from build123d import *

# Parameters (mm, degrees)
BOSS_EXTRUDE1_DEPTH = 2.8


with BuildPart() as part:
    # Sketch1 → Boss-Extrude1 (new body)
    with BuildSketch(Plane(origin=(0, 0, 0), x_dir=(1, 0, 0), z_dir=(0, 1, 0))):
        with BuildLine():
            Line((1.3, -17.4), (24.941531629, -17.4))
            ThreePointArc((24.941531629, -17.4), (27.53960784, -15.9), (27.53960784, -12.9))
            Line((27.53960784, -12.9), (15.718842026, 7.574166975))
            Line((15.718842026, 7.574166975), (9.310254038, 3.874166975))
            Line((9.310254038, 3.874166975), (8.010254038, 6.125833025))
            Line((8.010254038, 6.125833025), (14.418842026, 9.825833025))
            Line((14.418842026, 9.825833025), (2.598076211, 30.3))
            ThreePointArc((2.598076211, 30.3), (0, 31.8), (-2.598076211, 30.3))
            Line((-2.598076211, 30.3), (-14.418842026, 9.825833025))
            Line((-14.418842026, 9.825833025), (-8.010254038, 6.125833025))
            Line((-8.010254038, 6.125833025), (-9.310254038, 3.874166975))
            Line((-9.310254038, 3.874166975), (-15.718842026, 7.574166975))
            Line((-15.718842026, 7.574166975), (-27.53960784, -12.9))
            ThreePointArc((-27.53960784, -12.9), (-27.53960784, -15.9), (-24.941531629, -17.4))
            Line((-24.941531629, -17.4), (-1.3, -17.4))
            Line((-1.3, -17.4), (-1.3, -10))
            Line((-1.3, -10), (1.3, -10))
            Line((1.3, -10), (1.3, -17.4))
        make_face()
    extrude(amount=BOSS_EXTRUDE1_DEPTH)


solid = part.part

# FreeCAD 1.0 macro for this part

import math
import FreeCAD as App
import Part
import Sketcher
from FreeCAD import Vector
Q = App.Units.Quantity

doc = App.newDocument("Part")
body = doc.addObject("PartDesign::Body", "Body")

# Sketch on XZ plane
sketch1 = body.newObject("Sketcher::SketchObject", "Sketch")
sketch1.AttachmentSupport = (doc.getObject("XZ_Plane"), [""])
sketch1.MapMode = "FlatFace"
sketch1.addGeometry([
    Part.LineSegment(Vector(1.3, 17.4, 0), Vector(24.941532, 17.4, 0)),  # 0
    Part.ArcOfCircle(Part.Circle(Vector(24.941532, 14.4, 0), Vector(0, 0, 1), 3), math.radians(-30), math.radians(90)),  # 1
    Part.LineSegment(Vector(27.539608, 12.9, 0), Vector(15.718842, -7.574167, 0)),  # 2
    Part.LineSegment(Vector(15.718842, -7.574167, 0), Vector(9.310254, -3.874167, 0)),  # 3
    Part.LineSegment(Vector(9.310254, -3.874167, 0), Vector(8.010254, -6.125833, 0)),  # 4
    Part.LineSegment(Vector(8.010254, -6.125833, 0), Vector(14.418842, -9.825833, 0)),  # 5
    Part.LineSegment(Vector(14.418842, -9.825833, 0), Vector(2.598076, -30.3, 0)),  # 6
    Part.ArcOfCircle(Part.Circle(Vector(0, -28.8, 0), Vector(0, 0, 1), 3), math.radians(-150), math.radians(-30)),  # 7
    Part.LineSegment(Vector(-2.598076, -30.3, 0), Vector(-14.418842, -9.825833, 0)),  # 8
    Part.LineSegment(Vector(-14.418842, -9.825833, 0), Vector(-8.010254, -6.125833, 0)),  # 9
    Part.LineSegment(Vector(-8.010254, -6.125833, 0), Vector(-9.310254, -3.874167, 0)),  # 10
    Part.LineSegment(Vector(-9.310254, -3.874167, 0), Vector(-15.718842, -7.574167, 0)),  # 11
    Part.LineSegment(Vector(-15.718842, -7.574167, 0), Vector(-27.539608, 12.9, 0)),  # 12
    Part.ArcOfCircle(Part.Circle(Vector(-24.941532, 14.4, 0), Vector(0, 0, 1), 3), math.radians(90), math.radians(210)),  # 13
    Part.LineSegment(Vector(-24.941532, 17.4, 0), Vector(-1.3, 17.4, 0)),  # 14
    Part.LineSegment(Vector(-1.3, 17.4, 0), Vector(-1.3, 10, 0)),  # 15
    Part.LineSegment(Vector(-1.3, 10, 0), Vector(1.3, 10, 0)),  # 16
    Part.LineSegment(Vector(1.3, 10, 0), Vector(1.3, 17.4, 0)),  # 17
], False)
sketch1.addConstraint([
    Sketcher.Constraint("Tangent", 0, 2, 1, 2),
    Sketcher.Constraint("Tangent", 1, 1, 2, 1),
    Sketcher.Constraint("Coincident", 2, 2, 3, 1),
    Sketcher.Constraint("Coincident", 3, 2, 4, 1),
    Sketcher.Constraint("Coincident", 4, 2, 5, 1),
    Sketcher.Constraint("Coincident", 5, 2, 6, 1),
    Sketcher.Constraint("Tangent", 6, 2, 7, 2),
    Sketcher.Constraint("Tangent", 7, 1, 8, 1),
    Sketcher.Constraint("Coincident", 8, 2, 9, 1),
    Sketcher.Constraint("Coincident", 9, 2, 10, 1),
    Sketcher.Constraint("Coincident", 10, 2, 11, 1),
    Sketcher.Constraint("Coincident", 11, 2, 12, 1),
    Sketcher.Constraint("Tangent", 12, 2, 13, 2),
    Sketcher.Constraint("Tangent", 13, 1, 14, 1),
    Sketcher.Constraint("Coincident", 14, 2, 15, 1),
    Sketcher.Constraint("Coincident", 15, 2, 16, 1),
    Sketcher.Constraint("Coincident", 16, 2, 17, 1),
    Sketcher.Constraint("Coincident", 17, 2, 0, 1),
    Sketcher.Constraint("Horizontal", 0),
    Sketcher.Constraint("Horizontal", 14),
    Sketcher.Constraint("Vertical", 15),
    Sketcher.Constraint("Horizontal", 16),
    Sketcher.Constraint("Vertical", 17),
    Sketcher.Constraint("Equal", 1, 7),
    Sketcher.Constraint("Equal", 7, 13),
    Sketcher.Constraint("Symmetric", 1, 3, 13, 3, -2),
    Sketcher.Constraint("Symmetric", 6, 2, 7, 1, -2),
    Sketcher.Constraint("Symmetric", 4, 2, 9, 2, -2),
    Sketcher.Constraint("Symmetric", 3, 2, 10, 2, -2),
    Sketcher.Constraint("Symmetric", 2, 2, 11, 2, -2),
    Sketcher.Constraint("Perpendicular", 2, 3),
    Sketcher.Constraint("Perpendicular", 3, 4),
    Sketcher.Constraint("Perpendicular", 4, 5),
    Sketcher.Constraint("Perpendicular", 5, 6),
    Sketcher.Constraint("Perpendicular", 8, 9),
    Sketcher.Constraint("Equal", 0, 14),
    Sketcher.Constraint("Equal", 3, 5),
    Sketcher.Constraint("Equal", 2, 6),
    Sketcher.Constraint("Radius", 1, 3.0),
    Sketcher.Constraint("Angle", 2, Q("-120 deg")),
    Sketcher.Constraint("DistanceX", 16, 1, 16, 2, 2.6),
    Sketcher.Constraint("DistanceY", 15, 2, 15, 1, 7.4),
    Sketcher.Constraint("DistanceY", -1, 1, 15, 2, 10.0),
    Sketcher.Constraint("Distance", 3, 7.4),
    Sketcher.Constraint("Distance", 4, 2.6),
    Sketcher.Constraint("DistanceY", 7, 3, -1, 1, 28.8),
])
pad1 = body.newObject("PartDesign::Pad", "Pad")
pad1.Profile = sketch1
pad1.Length = 2.8
pad1.Reversed = True

doc.recompute()
